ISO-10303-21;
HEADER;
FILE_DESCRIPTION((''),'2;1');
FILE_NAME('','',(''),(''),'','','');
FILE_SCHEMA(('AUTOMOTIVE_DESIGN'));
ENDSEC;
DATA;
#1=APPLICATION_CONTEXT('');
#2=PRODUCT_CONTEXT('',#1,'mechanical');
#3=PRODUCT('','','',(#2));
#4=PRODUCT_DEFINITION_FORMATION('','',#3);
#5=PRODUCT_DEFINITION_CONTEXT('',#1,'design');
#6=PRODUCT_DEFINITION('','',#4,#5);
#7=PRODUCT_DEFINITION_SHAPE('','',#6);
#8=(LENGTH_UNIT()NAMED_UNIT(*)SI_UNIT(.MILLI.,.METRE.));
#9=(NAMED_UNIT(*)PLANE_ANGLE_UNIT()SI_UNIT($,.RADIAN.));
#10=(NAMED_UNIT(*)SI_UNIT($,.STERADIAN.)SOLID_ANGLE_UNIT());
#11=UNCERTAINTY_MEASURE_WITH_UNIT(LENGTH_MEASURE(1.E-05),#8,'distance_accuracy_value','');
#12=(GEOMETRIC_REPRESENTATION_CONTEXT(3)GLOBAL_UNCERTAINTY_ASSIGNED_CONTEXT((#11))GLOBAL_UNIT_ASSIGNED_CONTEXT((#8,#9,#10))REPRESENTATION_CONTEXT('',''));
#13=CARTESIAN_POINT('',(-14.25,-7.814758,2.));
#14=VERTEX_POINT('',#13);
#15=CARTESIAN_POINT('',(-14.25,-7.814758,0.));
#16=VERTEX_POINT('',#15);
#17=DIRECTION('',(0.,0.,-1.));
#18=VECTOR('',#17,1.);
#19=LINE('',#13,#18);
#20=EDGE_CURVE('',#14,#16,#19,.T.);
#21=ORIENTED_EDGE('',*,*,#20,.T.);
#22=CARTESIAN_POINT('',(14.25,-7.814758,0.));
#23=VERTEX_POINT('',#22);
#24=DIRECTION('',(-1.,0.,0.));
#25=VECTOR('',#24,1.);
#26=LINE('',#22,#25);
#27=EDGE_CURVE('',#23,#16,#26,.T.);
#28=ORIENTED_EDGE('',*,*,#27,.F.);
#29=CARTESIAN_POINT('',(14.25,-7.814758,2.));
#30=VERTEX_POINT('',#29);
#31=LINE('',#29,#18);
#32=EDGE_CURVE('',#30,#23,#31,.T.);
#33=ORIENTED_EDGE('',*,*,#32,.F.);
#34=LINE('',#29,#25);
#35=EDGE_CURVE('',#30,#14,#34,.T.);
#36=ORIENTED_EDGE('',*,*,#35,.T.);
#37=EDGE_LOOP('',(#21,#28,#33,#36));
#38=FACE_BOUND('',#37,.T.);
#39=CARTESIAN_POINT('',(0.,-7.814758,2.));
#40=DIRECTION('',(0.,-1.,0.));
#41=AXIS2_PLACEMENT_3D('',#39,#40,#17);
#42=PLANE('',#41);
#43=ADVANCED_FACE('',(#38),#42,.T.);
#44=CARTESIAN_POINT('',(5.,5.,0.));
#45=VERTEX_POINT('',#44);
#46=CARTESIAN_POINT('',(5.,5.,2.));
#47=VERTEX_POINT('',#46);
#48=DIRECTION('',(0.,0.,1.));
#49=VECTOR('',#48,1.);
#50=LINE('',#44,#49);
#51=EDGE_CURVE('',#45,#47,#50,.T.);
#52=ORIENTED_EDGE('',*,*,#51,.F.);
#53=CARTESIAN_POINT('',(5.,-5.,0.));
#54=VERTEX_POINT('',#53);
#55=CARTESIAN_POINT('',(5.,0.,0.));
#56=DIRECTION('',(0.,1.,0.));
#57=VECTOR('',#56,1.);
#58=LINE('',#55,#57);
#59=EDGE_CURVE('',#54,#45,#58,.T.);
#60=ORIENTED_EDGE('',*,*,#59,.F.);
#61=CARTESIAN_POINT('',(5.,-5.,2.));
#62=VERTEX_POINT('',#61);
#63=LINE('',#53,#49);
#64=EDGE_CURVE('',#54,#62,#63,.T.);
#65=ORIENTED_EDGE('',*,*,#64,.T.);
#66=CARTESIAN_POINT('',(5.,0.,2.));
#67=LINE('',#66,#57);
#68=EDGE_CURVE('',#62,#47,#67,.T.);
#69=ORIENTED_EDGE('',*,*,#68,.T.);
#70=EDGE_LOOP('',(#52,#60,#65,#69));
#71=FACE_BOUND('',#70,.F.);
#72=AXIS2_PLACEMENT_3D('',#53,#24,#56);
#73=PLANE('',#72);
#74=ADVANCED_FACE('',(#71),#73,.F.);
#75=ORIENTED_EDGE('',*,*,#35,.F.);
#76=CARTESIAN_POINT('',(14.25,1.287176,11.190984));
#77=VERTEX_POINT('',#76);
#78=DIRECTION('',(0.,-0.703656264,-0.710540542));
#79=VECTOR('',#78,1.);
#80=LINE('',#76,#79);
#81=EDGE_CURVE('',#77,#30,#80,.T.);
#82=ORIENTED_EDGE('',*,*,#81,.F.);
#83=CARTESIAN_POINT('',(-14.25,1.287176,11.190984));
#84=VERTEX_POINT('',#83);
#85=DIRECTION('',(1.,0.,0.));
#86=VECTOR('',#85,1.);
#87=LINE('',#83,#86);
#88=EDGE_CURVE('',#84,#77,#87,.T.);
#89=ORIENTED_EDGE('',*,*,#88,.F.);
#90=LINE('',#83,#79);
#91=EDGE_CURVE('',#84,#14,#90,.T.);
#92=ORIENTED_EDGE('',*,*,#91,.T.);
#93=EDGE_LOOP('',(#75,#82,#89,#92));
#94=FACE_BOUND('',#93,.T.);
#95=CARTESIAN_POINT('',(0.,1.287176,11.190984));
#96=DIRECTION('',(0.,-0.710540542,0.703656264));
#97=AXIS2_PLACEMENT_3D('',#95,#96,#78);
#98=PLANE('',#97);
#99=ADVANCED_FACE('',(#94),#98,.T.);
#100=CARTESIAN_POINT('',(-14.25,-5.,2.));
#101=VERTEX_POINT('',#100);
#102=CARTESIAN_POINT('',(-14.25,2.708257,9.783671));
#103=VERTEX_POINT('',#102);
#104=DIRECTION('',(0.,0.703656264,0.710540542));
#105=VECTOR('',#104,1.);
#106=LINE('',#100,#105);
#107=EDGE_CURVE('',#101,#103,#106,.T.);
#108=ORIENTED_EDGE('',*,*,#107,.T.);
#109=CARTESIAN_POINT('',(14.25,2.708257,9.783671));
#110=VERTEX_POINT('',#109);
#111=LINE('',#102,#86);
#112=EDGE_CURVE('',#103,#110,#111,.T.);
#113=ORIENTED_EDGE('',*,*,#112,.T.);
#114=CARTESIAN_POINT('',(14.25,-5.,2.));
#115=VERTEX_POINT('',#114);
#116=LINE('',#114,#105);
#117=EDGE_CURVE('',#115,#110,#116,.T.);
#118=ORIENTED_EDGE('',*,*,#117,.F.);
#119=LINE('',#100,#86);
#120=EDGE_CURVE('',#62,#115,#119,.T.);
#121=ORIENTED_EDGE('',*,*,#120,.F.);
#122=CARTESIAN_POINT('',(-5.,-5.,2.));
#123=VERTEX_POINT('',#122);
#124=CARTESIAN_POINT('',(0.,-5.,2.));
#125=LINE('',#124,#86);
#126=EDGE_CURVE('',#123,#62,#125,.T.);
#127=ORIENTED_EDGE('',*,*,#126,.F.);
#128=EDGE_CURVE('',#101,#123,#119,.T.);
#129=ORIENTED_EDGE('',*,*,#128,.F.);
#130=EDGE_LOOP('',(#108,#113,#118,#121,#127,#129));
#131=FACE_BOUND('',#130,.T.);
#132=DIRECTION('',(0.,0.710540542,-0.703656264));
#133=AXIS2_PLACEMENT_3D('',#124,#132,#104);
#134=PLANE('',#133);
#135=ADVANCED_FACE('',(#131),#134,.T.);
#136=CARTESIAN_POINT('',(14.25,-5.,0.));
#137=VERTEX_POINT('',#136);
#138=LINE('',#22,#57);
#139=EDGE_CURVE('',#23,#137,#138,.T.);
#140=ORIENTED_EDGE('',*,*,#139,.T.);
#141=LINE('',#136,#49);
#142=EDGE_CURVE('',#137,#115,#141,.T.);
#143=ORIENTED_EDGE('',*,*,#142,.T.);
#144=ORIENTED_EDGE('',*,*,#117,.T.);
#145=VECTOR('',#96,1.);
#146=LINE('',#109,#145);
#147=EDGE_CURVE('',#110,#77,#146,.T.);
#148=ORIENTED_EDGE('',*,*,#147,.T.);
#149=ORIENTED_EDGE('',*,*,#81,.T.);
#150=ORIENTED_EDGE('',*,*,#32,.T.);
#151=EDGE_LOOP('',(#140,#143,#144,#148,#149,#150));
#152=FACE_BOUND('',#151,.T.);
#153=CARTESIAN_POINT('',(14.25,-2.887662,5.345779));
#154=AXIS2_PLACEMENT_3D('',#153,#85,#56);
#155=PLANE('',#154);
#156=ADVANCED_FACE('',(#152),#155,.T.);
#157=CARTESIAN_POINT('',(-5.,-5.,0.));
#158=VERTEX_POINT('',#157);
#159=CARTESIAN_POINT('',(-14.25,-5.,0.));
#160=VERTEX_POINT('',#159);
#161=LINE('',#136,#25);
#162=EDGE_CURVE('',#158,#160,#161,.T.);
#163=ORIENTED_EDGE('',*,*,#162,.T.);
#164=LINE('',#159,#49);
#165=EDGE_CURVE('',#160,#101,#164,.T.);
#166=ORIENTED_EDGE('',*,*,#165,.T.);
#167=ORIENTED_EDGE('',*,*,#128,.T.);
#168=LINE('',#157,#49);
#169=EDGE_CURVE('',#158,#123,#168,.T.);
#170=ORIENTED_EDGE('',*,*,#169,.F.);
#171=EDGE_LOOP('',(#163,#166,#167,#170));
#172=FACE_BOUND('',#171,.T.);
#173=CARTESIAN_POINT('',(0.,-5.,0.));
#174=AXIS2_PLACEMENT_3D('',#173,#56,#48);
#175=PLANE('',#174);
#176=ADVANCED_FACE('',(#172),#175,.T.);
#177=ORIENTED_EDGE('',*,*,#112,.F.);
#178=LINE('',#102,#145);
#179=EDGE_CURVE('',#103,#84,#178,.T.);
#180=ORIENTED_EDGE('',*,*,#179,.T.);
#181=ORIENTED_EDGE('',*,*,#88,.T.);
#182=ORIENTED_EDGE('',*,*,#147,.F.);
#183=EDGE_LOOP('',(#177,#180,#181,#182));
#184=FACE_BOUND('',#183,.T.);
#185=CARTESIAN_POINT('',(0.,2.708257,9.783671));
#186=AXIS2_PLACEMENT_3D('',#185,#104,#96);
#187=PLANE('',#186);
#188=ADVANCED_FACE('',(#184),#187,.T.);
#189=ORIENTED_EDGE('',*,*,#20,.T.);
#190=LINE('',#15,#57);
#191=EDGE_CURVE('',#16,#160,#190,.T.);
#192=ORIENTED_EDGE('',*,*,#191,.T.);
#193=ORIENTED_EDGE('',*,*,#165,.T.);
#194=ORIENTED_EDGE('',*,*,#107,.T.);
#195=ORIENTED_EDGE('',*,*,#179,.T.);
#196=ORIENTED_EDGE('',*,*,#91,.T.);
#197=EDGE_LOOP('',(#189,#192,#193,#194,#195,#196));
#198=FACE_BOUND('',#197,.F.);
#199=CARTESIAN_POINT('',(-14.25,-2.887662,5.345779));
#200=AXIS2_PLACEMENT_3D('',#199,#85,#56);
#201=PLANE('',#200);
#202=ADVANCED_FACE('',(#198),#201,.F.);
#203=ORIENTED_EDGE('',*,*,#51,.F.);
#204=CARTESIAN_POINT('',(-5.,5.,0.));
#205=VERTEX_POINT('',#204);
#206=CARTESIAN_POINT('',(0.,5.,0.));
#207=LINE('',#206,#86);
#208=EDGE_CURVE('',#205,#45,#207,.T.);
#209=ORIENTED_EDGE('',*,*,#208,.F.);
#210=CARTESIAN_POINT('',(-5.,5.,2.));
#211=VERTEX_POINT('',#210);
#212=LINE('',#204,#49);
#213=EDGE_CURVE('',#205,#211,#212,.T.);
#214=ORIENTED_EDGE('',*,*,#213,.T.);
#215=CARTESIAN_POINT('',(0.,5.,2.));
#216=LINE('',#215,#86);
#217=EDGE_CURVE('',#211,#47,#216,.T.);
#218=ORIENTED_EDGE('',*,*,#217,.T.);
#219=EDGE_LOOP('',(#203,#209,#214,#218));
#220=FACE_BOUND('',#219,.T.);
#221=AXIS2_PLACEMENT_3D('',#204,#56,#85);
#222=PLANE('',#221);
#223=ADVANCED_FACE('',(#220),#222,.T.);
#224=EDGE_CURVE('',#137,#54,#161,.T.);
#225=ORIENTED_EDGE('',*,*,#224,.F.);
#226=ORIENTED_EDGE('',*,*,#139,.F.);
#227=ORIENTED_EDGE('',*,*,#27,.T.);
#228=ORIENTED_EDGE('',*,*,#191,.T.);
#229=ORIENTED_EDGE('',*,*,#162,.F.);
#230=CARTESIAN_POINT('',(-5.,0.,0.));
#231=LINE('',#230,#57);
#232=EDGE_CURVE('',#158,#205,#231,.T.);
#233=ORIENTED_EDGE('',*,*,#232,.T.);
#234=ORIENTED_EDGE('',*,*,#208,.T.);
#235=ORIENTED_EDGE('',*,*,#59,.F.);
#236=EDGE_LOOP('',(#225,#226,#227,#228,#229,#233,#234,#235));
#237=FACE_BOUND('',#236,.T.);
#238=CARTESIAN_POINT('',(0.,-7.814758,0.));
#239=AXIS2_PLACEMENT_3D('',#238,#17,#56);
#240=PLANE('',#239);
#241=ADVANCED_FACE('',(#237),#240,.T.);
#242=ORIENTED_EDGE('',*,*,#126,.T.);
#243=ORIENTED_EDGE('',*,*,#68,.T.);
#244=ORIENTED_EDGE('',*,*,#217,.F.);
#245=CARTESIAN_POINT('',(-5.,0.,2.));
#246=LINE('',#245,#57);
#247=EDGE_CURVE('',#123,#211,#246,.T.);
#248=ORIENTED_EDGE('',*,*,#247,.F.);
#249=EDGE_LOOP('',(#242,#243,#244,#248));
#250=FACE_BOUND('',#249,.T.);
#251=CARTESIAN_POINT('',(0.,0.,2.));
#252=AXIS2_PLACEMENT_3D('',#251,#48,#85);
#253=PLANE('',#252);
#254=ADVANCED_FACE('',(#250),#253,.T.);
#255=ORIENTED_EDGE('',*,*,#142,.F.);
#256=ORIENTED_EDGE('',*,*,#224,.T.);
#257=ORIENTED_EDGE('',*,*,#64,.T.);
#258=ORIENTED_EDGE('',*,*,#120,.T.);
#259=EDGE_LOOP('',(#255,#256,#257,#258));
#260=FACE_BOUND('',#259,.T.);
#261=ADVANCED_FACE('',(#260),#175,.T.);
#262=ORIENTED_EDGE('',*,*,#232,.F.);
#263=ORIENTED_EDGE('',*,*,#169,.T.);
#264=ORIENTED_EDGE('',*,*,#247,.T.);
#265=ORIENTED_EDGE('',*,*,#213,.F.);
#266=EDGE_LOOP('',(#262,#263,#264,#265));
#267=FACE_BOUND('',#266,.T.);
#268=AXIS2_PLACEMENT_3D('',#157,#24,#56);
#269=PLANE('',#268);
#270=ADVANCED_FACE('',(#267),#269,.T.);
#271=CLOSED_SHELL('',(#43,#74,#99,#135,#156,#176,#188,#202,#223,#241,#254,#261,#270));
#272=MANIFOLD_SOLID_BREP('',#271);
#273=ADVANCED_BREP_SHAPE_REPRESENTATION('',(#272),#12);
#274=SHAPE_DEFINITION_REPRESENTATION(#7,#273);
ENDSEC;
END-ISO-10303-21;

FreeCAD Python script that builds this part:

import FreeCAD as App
import Part
import Sketcher


def add_polygon(sketch, points):
    """Adds a closed chain of lines whose ends are joined by coincident constraints."""
    first, n = sketch.GeometryCount, len(points)
    for a, b in zip(points, points[1:] + points[:1]):
        sketch.addGeometry(Part.LineSegment(App.Vector(*a, 0), App.Vector(*b, 0)), False)
    for i in range(n):
        sketch.addConstraint(Sketcher.Constraint("Coincident", first + i, 2, first + (i + 1) % n, 1))

doc = App.newDocument("Part")
body = doc.addObject("PartDesign::Body", "Body")

sketch1 = body.newObject("Sketcher::SketchObject", "Sketch")
sketch1.AttachmentSupport = (doc.getObject("XY_Plane"), [""])
sketch1.MapMode = "FlatFace"
add_polygon(sketch1, [(-5, 5), (-5, -5), (5, -5), (5, 5)])
sketch1.addConstraint(Sketcher.Constraint("Vertical", 0))
sketch1.addConstraint(Sketcher.Constraint("Horizontal", 1))
sketch1.addConstraint(Sketcher.Constraint("Vertical", 2))
sketch1.addConstraint(Sketcher.Constraint("Horizontal", 3))
sketch1.addConstraint(Sketcher.Constraint("Symmetric", 0, 2, 2, 2, -1, 1))
sketch1.addConstraint(Sketcher.Constraint("Equal", 3, 0))
sketch1.addConstraint(Sketcher.Constraint("DistanceX", 1, 1, 1, 2, 10.0))
pad1 = body.newObject("PartDesign::Pad", "Pad")
pad1.Profile = sketch1
pad1.Length = 2

sketch2 = body.newObject("Sketcher::SketchObject", "Sketch001")
sketch2.AttachmentSupport = (doc.getObject("YZ_Plane"), [""])
sketch2.MapMode = "FlatFace"
add_polygon(sketch2, [(-5, 0), (-5, 2), (2.7, 9.8), (1.3, 11.2), (-7.8, 2), (-7.8, 0)])
sketch2.addConstraint(Sketcher.Constraint("Vertical", 0))
sketch2.addConstraint(Sketcher.Constraint("Vertical", 4))
sketch2.addConstraint(Sketcher.Constraint("Horizontal", 5))
sketch2.addConstraint(Sketcher.Constraint("PointOnObject", 4, 2, -1))
sketch2.addConstraint(Sketcher.Constraint("Perpendicular", 1, 2))
sketch2.addConstraint(Sketcher.Constraint("Perpendicular", 2, 3))
sketch2.addConstraint(Sketcher.Constraint("Horizontal", 0, 2, 3, 2))
sketch2.addConstraint(Sketcher.Constraint("DistanceY", 0, 1, 0, 2, 2.0))
sketch2.addConstraint(Sketcher.Constraint("Distance", 2, 2.0))
sketch2.addConstraint(Sketcher.Constraint("DistanceX", 0, 2, -1, 1, 5.0))
sketch2.addConstraint(Sketcher.Constraint("Distance", 3, 12.9352))
sketch2.addConstraint(Sketcher.Constraint("DistanceX", 5, 1, 5, 2, 2.814758))
pad2 = body.newObject("PartDesign::Pad", "Pad001")
pad2.Profile = sketch2
pad2.Length = 28.5
pad2.Midplane = True

doc.recompute()
